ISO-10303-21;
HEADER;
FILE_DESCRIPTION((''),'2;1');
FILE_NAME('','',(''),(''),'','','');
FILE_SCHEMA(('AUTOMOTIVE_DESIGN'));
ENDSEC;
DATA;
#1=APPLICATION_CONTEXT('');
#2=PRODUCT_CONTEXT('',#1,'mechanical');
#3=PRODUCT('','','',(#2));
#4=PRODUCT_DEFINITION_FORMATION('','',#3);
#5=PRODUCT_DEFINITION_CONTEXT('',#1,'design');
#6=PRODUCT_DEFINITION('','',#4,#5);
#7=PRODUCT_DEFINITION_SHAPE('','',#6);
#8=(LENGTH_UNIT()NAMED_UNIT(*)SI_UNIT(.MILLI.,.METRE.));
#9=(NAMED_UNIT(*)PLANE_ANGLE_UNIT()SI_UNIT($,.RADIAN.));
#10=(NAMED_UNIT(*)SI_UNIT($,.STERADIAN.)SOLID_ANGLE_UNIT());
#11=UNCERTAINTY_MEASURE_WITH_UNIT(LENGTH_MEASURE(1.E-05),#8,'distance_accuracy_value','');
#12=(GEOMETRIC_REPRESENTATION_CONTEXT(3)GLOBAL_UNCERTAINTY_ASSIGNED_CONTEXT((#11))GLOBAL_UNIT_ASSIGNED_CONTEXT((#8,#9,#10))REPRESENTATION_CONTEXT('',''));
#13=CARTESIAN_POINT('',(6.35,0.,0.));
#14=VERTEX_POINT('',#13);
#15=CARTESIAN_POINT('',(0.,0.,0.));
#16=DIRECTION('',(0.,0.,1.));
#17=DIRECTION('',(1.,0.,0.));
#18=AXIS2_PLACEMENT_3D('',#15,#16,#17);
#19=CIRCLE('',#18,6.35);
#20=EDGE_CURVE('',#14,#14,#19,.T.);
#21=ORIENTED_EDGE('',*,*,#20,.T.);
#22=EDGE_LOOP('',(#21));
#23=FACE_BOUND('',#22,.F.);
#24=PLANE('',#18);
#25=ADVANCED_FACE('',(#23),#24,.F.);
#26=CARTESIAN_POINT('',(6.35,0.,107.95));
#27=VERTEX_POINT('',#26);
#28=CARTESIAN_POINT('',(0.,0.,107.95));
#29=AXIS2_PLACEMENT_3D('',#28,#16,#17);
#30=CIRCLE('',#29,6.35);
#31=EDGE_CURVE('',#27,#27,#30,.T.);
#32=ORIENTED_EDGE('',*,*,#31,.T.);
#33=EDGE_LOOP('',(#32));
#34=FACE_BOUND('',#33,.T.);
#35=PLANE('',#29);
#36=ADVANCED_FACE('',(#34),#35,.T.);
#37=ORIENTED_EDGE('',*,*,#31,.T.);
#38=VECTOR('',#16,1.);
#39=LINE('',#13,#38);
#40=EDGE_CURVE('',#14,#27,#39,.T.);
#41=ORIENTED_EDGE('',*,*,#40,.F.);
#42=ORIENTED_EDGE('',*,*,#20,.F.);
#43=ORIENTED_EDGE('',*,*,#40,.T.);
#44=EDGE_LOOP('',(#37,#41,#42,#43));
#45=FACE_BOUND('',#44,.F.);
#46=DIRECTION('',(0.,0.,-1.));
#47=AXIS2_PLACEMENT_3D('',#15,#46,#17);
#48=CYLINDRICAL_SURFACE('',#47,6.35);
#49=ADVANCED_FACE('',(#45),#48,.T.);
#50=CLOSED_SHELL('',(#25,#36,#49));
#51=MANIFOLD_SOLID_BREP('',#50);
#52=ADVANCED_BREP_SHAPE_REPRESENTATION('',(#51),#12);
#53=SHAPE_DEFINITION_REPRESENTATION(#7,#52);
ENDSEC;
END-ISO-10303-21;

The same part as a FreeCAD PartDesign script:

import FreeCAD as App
import Part
import Sketcher
from FreeCAD import Vector
Q = App.Units.Quantity

doc = App.newDocument("Part")
body = doc.addObject("PartDesign::Body", "Body")

sketch1 = body.newObject("Sketcher::SketchObject", "Sketch")
sketch1.AttachmentSupport = (doc.getObject("XY_Plane"), [""])
sketch1.MapMode = "FlatFace"
sketch1.addGeometry(Part.Circle(Vector(0, 0, 0), Vector(0, 0, 1), 6), False)
sketch1.addConstraint([
    Sketcher.Constraint("Coincident", 0, 3, -1, 1),
    Sketcher.Constraint("Diameter", 0, Q("0.5 in")),
])
pad1 = body.newObject("PartDesign::Pad", "Pad")
pad1.Profile = sketch1
pad1.Length = Q("4.25 in")

doc.recompute()
